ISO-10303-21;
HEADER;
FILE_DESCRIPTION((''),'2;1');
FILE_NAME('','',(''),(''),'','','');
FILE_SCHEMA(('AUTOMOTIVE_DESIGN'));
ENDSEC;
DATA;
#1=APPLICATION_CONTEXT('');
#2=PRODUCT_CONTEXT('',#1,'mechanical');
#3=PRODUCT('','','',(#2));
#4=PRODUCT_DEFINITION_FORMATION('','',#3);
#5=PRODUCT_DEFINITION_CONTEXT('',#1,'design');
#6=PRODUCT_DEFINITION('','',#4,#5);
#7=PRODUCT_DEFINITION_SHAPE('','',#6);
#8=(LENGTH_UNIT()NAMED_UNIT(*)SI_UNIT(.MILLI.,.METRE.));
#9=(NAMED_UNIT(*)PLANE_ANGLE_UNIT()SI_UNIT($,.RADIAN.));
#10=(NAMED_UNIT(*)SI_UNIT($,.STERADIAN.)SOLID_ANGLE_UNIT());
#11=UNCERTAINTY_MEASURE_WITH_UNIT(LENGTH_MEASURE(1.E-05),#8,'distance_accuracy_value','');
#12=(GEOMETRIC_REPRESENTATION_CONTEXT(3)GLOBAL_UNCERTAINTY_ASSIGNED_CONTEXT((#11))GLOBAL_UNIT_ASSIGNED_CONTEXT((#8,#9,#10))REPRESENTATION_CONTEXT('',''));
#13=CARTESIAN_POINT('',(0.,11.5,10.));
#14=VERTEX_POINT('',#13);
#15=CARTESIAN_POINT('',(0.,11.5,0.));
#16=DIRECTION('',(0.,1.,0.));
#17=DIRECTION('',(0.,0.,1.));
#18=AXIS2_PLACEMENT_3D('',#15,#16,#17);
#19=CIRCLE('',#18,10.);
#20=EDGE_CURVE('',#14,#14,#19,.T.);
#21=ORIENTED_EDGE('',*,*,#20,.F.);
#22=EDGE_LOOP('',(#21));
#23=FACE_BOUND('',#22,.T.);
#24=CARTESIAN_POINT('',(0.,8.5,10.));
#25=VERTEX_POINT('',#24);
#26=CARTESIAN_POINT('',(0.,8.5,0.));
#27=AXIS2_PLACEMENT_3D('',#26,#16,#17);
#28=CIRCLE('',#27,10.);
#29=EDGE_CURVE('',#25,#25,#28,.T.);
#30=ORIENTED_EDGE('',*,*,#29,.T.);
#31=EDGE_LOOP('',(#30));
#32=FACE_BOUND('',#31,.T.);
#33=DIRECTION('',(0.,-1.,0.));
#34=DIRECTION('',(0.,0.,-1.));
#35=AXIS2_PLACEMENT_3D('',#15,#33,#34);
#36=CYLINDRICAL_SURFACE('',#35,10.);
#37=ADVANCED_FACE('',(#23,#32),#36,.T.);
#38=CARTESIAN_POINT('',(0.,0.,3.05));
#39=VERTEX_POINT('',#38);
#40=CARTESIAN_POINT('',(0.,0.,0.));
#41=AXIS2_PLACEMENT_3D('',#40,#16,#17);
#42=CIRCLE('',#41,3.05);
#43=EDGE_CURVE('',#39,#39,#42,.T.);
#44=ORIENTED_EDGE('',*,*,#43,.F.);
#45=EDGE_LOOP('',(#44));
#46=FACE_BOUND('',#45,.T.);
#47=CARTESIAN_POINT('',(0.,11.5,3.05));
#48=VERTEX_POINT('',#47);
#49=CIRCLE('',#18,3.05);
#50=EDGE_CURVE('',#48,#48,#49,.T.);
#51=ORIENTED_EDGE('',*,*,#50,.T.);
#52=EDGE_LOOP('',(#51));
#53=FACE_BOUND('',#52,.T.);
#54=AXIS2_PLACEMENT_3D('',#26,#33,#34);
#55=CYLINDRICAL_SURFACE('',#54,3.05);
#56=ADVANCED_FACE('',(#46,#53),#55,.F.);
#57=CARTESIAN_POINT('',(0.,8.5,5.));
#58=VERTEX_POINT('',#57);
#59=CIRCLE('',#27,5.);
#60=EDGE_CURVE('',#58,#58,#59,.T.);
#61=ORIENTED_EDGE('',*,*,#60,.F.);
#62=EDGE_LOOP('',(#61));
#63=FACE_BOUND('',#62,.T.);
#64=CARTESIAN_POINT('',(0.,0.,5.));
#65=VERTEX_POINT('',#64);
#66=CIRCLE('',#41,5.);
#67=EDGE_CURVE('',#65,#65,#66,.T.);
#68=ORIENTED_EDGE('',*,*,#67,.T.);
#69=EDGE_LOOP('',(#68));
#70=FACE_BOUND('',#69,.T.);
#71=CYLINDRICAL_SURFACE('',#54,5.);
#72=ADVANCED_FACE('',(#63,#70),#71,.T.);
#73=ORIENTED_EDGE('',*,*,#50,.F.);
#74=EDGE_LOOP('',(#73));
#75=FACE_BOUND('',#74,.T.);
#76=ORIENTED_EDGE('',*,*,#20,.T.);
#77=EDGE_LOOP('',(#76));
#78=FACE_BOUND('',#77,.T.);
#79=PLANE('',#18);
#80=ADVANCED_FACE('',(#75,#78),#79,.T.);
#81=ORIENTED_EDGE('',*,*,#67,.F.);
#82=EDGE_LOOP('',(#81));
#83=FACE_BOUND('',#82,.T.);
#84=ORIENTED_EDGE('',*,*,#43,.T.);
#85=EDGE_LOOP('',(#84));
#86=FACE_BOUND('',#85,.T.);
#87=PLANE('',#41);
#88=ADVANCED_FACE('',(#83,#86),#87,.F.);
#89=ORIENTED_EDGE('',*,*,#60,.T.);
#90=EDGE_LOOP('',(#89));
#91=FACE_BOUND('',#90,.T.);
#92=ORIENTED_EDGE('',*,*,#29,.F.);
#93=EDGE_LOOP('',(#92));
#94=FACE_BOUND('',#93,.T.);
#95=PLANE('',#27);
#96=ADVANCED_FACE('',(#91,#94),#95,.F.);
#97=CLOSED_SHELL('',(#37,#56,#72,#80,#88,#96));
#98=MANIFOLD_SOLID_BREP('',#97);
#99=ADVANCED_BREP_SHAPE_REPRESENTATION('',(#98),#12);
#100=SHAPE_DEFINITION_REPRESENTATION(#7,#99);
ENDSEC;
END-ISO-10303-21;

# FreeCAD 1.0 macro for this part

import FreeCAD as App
import Part
import Sketcher
from FreeCAD import Vector
Q = App.Units.Quantity

doc = App.newDocument("Part")
body = doc.addObject("PartDesign::Body", "Body")

# Sketch on XZ plane
sketch1 = body.newObject("Sketcher::SketchObject", "Sketch")
sketch1.AttachmentSupport = (doc.getObject("XZ_Plane"), [""])
sketch1.MapMode = "FlatFace"
sketch1.addGeometry([
    Part.Circle(Vector(0, 0, 0), Vector(0, 0, 1), 5),
    Part.Circle(Vector(0, 0, 0), Vector(0, 0, 1), 3),
], False)
sketch1.addConstraint([
    Sketcher.Constraint("Coincident", 0, 3, -1, 1),
    Sketcher.Constraint("Coincident", 1, 3, -1, 1),
    Sketcher.Constraint("Diameter", 0, Q("10 mm")),
    Sketcher.Constraint("Diameter", 1, Q("6.1 mm")),
])
pad1 = body.newObject("PartDesign::Pad", "Pad")
pad1.Profile = sketch1
pad1.Length = 8.5
pad1.Reversed = True

# Sketch on XZ plane
sketch2 = body.newObject("Sketcher::SketchObject", "Sketch001")
sketch2.AttachmentSupport = (doc.getObject("XZ_Plane"), [""])
sketch2.MapMode = "FlatFace"
sketch2.AttachmentOffset = App.Placement(Vector(0, 0, -8.5), App.Rotation())
sketch2.addGeometry([
    Part.Circle(Vector(0, 0, 0), Vector(0, 0, 1), 10),
    Part.Circle(Vector(0, 0, 0), Vector(0, 0, 1), 3),
], False)
sketch2.addConstraint([
    Sketcher.Constraint("Coincident", 0, 3, -1, 1),
    Sketcher.Constraint("Coincident", 1, 3, -1, 1),
    Sketcher.Constraint("Diameter", 0, Q("20 mm")),
    Sketcher.Constraint("Diameter", 1, Q("6.1 mm")),
])
pad2 = body.newObject("PartDesign::Pad", "Pad001")
pad2.Profile = sketch2
pad2.Length = 3
pad2.Reversed = True

doc.recompute()
